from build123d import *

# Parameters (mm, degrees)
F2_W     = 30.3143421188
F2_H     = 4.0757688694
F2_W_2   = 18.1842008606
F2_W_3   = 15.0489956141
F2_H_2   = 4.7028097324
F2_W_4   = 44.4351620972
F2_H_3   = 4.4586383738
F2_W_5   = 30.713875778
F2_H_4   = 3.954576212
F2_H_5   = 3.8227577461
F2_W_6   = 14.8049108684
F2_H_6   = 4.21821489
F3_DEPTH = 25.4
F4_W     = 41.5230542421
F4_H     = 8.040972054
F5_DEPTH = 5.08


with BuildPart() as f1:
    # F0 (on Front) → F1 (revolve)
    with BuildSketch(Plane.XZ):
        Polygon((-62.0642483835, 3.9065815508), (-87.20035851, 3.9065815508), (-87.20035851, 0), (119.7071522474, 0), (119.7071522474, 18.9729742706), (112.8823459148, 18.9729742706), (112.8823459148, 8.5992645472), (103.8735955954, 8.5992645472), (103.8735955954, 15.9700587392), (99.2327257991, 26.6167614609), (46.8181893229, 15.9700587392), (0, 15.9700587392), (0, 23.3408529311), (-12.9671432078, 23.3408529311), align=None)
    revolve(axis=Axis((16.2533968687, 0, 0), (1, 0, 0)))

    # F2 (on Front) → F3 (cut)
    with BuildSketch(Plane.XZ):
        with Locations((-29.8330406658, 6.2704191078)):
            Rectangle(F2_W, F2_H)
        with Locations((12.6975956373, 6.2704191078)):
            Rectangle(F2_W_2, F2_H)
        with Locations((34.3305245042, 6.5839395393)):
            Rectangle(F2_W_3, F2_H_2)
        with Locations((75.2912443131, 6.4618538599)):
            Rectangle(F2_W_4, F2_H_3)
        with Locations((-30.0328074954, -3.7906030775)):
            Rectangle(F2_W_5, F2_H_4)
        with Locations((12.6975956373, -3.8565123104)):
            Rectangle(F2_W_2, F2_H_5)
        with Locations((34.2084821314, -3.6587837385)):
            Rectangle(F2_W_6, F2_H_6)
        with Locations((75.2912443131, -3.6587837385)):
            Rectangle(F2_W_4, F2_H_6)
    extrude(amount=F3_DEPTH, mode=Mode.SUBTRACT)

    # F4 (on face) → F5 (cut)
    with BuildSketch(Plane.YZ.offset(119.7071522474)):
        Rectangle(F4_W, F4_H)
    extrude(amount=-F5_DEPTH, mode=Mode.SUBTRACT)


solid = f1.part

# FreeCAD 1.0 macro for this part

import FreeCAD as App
import Part
import Sketcher
Q = App.Units.Quantity

doc = App.newDocument("Part")
body = doc.addObject("PartDesign::Body", "Body")

sketch1 = body.newObject("Sketcher::SketchObject", "Sketch")
sketch1.AttachmentSupport = (doc.getObject("XZ_Plane"), [""])
sketch1.MapMode = "FlatFace"
sketch1.addGeometry([
    Part.LineSegment(App.Vector(-62.1, 3.9, 0), App.Vector(-87.2, 3.9, 0)),
    Part.LineSegment(App.Vector(-87.2, 3.9, 0), App.Vector(-87.2, 0, 0)),
    Part.LineSegment(App.Vector(-87.2, 0, 0), App.Vector(119.7, 0, 0)),
    Part.LineSegment(App.Vector(119.7, 0, 0), App.Vector(119.7, 19, 0)),
    Part.LineSegment(App.Vector(119.7, 19, 0), App.Vector(112.9, 19, 0)),
    Part.LineSegment(App.Vector(112.9, 19, 0), App.Vector(112.9, 8.6, 0)),
    Part.LineSegment(App.Vector(112.9, 8.6, 0), App.Vector(103.9, 8.6, 0)),
    Part.LineSegment(App.Vector(103.9, 8.6, 0), App.Vector(103.9, 16, 0)),
    Part.LineSegment(App.Vector(103.9, 16, 0), App.Vector(99.2, 26.6, 0)),
    Part.LineSegment(App.Vector(99.2, 26.6, 0), App.Vector(46.8, 16, 0)),
    Part.LineSegment(App.Vector(46.8, 16, 0), App.Vector(0, 16, 0)),
    Part.LineSegment(App.Vector(0, 16, 0), App.Vector(0, 23.3, 0)),
    Part.LineSegment(App.Vector(0, 23.3, 0), App.Vector(-13, 23.3, 0)),
    Part.LineSegment(App.Vector(-13, 23.3, 0), App.Vector(-62.1, 3.9, 0)),
], False)
sketch1.addConstraint([
    Sketcher.Constraint("Coincident", 0, 2, 1, 1),
    Sketcher.Constraint("Coincident", 1, 2, 2, 1),
    Sketcher.Constraint("Coincident", 2, 2, 3, 1),
    Sketcher.Constraint("Coincident", 3, 2, 4, 1),
    Sketcher.Constraint("Coincident", 4, 2, 5, 1),
    Sketcher.Constraint("Coincident", 5, 2, 6, 1),
    Sketcher.Constraint("Coincident", 6, 2, 7, 1),
    Sketcher.Constraint("Coincident", 7, 2, 8, 1),
    Sketcher.Constraint("Coincident", 8, 2, 9, 1),
    Sketcher.Constraint("Coincident", 9, 2, 10, 1),
    Sketcher.Constraint("Coincident", 10, 2, 11, 1),
    Sketcher.Constraint("Coincident", 11, 2, 12, 1),
    Sketcher.Constraint("Coincident", 12, 2, 13, 1),
    Sketcher.Constraint("Coincident", 13, 2, 0, 1),
    Sketcher.Constraint("Horizontal", 0),
    Sketcher.Constraint("Vertical", 1),
    Sketcher.Constraint("Horizontal", 2),
    Sketcher.Constraint("Vertical", 3),
    Sketcher.Constraint("Horizontal", 4),
    Sketcher.Constraint("Vertical", 5),
    Sketcher.Constraint("Horizontal", 6),
    Sketcher.Constraint("Vertical", 7),
    Sketcher.Constraint("Horizontal", 10),
    Sketcher.Constraint("Vertical", 11),
    Sketcher.Constraint("Horizontal", 12),
    Sketcher.Constraint("PointOnObject", 1, 2, -1),
    Sketcher.Constraint("PointOnObject", 10, 2, -2),
    Sketcher.Constraint("Horizontal", 7, 2, 9, 2),
    Sketcher.Constraint("Equal", 7, 11),
    Sketcher.Constraint("DistanceX", 0, 2, 0, 1, 25.13611),
    Sketcher.Constraint("DistanceX", 2, 1, 2, 2, 206.907511),
    Sketcher.Constraint("DistanceX", 6, 2, 6, 1, 9.00875),
    Sketcher.Constraint("DistanceX", 10, 2, 10, 1, 46.818189),
    Sketcher.Constraint("DistanceY", 1, 2, 1, 1, 3.906582),
    Sketcher.Constraint("DistanceY", 5, 2, 5, 1, 10.37371),
    Sketcher.Constraint("DistanceX", 4, 2, 4, 1, 6.824806),
    Sketcher.Constraint("DistanceX", 12, 2, 12, 1, 12.967143),
    Sketcher.Constraint("DistanceY", 3, 1, 3, 2, 18.972974),
    Sketcher.Constraint("DistanceY", 7, 1, 7, 2, 7.370794),
    Sketcher.Constraint("DistanceX", 0, 2, -1, 1, 87.200359),
    Sketcher.Constraint("DistanceY", -1, 1, 8, 2, 26.616761),
    Sketcher.Constraint("DistanceX", 8, 2, 7, 2, 4.64087),
])
revolution = body.newObject("PartDesign::Revolution", "Revolution")
revolution.Profile = sketch1
revolution.ReferenceAxis = (sketch1, ["H_Axis"])
revolution.Angle = 360

sketch2 = body.newObject("Sketcher::SketchObject", "Sketch001")
sketch2.AttachmentSupport = (doc.getObject("XZ_Plane"), [""])
sketch2.MapMode = "FlatFace"
sketch2.addGeometry([
    Part.LineSegment(App.Vector(-45, 8.3, 0), App.Vector(-45, 4.2, 0)),
    Part.LineSegment(App.Vector(-45, 4.2, 0), App.Vector(-14.7, 4.2, 0)),
    Part.LineSegment(App.Vector(-14.7, 4.2, 0), App.Vector(-14.7, 8.3, 0)),
    Part.LineSegment(App.Vector(-14.7, 8.3, 0), App.Vector(-45, 8.3, 0)),
    Part.LineSegment(App.Vector(3.6, 8.3, 0), App.Vector(3.6, 4.2, 0)),
    Part.LineSegment(App.Vector(3.6, 4.2, 0), App.Vector(21.8, 4.2, 0)),
    Part.LineSegment(App.Vector(21.8, 4.2, 0), App.Vector(21.8, 8.3, 0)),
    Part.LineSegment(App.Vector(21.8, 8.3, 0), App.Vector(3.6, 8.3, 0)),
    Part.LineSegment(App.Vector(26.8, 8.9, 0), App.Vector(26.8, 4.2, 0)),
    Part.LineSegment(App.Vector(26.8, 4.2, 0), App.Vector(41.9, 4.2, 0)),
    Part.LineSegment(App.Vector(41.9, 4.2, 0), App.Vector(41.9, 8.9, 0)),
    Part.LineSegment(App.Vector(41.9, 8.9, 0), App.Vector(26.8, 8.9, 0)),
    Part.LineSegment(App.Vector(53.1, 8.7, 0), App.Vector(53.1, 4.2, 0)),
    Part.LineSegment(App.Vector(53.1, 4.2, 0), App.Vector(97.5, 4.2, 0)),
    Part.LineSegment(App.Vector(97.5, 4.2, 0), App.Vector(97.5, 8.7, 0)),
    Part.LineSegment(App.Vector(97.5, 8.7, 0), App.Vector(53.1, 8.7, 0)),
    Part.LineSegment(App.Vector(-45.4, -1.8, 0), App.Vector(-45.4, -5.8, 0)),
    Part.LineSegment(App.Vector(-45.4, -5.8, 0), App.Vector(-14.7, -5.8, 0)),
    Part.LineSegment(App.Vector(-14.7, -5.8, 0), App.Vector(-14.7, -1.8, 0)),
    Part.LineSegment(App.Vector(-14.7, -1.8, 0), App.Vector(-45.4, -1.8, 0)),
    Part.LineSegment(App.Vector(3.6, -1.9, 0), App.Vector(3.6, -5.8, 0)),
    Part.LineSegment(App.Vector(3.6, -5.8, 0), App.Vector(21.8, -5.8, 0)),
    Part.LineSegment(App.Vector(21.8, -5.8, 0), App.Vector(21.8, -1.9, 0)),
    Part.LineSegment(App.Vector(21.8, -1.9, 0), App.Vector(3.6, -1.9, 0)),
    Part.LineSegment(App.Vector(26.8, -1.5, 0), App.Vector(26.8, -5.8, 0)),
    Part.LineSegment(App.Vector(26.8, -5.8, 0), App.Vector(41.6, -5.8, 0)),
    Part.LineSegment(App.Vector(41.6, -5.8, 0), App.Vector(41.6, -1.5, 0)),
    Part.LineSegment(App.Vector(41.6, -1.5, 0), App.Vector(26.8, -1.5, 0)),
    Part.LineSegment(App.Vector(53.1, -1.5, 0), App.Vector(53.1, -5.8, 0)),
    Part.LineSegment(App.Vector(53.1, -5.8, 0), App.Vector(97.5, -5.8, 0)),
    Part.LineSegment(App.Vector(97.5, -5.8, 0), App.Vector(97.5, -1.5, 0)),
    Part.LineSegment(App.Vector(97.5, -1.5, 0), App.Vector(53.1, -1.5, 0)),
], False)
sketch2.addConstraint([
    Sketcher.Constraint("Coincident", 0, 2, 1, 1),
    Sketcher.Constraint("Coincident", 1, 2, 2, 1),
    Sketcher.Constraint("Coincident", 2, 2, 3, 1),
    Sketcher.Constraint("Coincident", 3, 2, 0, 1),
    Sketcher.Constraint("Coincident", 4, 2, 5, 1),
    Sketcher.Constraint("Coincident", 5, 2, 6, 1),
    Sketcher.Constraint("Coincident", 6, 2, 7, 1),
    Sketcher.Constraint("Coincident", 7, 2, 4, 1),
    Sketcher.Constraint("Coincident", 8, 2, 9, 1),
    Sketcher.Constraint("Coincident", 9, 2, 10, 1),
    Sketcher.Constraint("Coincident", 10, 2, 11, 1),
    Sketcher.Constraint("Coincident", 11, 2, 8, 1),
    Sketcher.Constraint("Coincident", 12, 2, 13, 1),
    Sketcher.Constraint("Coincident", 13, 2, 14, 1),
    Sketcher.Constraint("Coincident", 14, 2, 15, 1),
    Sketcher.Constraint("Coincident", 15, 2, 12, 1),
    Sketcher.Constraint("Coincident", 16, 2, 17, 1),
    Sketcher.Constraint("Coincident", 17, 2, 18, 1),
    Sketcher.Constraint("Coincident", 18, 2, 19, 1),
    Sketcher.Constraint("Coincident", 19, 2, 16, 1),
    Sketcher.Constraint("Coincident", 20, 2, 21, 1),
    Sketcher.Constraint("Coincident", 21, 2, 22, 1),
    Sketcher.Constraint("Coincident", 22, 2, 23, 1),
    Sketcher.Constraint("Coincident", 23, 2, 20, 1),
    Sketcher.Constraint("Coincident", 24, 2, 25, 1),
    Sketcher.Constraint("Coincident", 25, 2, 26, 1),
    Sketcher.Constraint("Coincident", 26, 2, 27, 1),
    Sketcher.Constraint("Coincident", 27, 2, 24, 1),
    Sketcher.Constraint("Coincident", 28, 2, 29, 1),
    Sketcher.Constraint("Coincident", 29, 2, 30, 1),
    Sketcher.Constraint("Coincident", 30, 2, 31, 1),
    Sketcher.Constraint("Coincident", 31, 2, 28, 1),
    Sketcher.Constraint("Vertical", 0),
    Sketcher.Constraint("Horizontal", 1),
    Sketcher.Constraint("Vertical", 2),
    Sketcher.Constraint("Horizontal", 3),
    Sketcher.Constraint("Vertical", 4),
    Sketcher.Constraint("Horizontal", 5),
    Sketcher.Constraint("Vertical", 6),
    Sketcher.Constraint("Horizontal", 7),
    Sketcher.Constraint("Vertical", 8),
    Sketcher.Constraint("Horizontal", 9),
    Sketcher.Constraint("Vertical", 10),
    Sketcher.Constraint("Horizontal", 11),
    Sketcher.Constraint("Vertical", 12),
    Sketcher.Constraint("Horizontal", 13),
    Sketcher.Constraint("Vertical", 14),
    Sketcher.Constraint("Horizontal", 15),
    Sketcher.Constraint("Vertical", 16),
    Sketcher.Constraint("Horizontal", 17),
    Sketcher.Constraint("Vertical", 18),
    Sketcher.Constraint("Horizontal", 19),
    Sketcher.Constraint("Vertical", 20),
    Sketcher.Constraint("Horizontal", 21),
    Sketcher.Constraint("Vertical", 22),
    Sketcher.Constraint("Horizontal", 23),
    Sketcher.Constraint("Vertical", 24),
    Sketcher.Constraint("Horizontal", 25),
    Sketcher.Constraint("Vertical", 26),
    Sketcher.Constraint("Horizontal", 27),
    Sketcher.Constraint("Vertical", 28),
    Sketcher.Constraint("Horizontal", 29),
    Sketcher.Constraint("Vertical", 30),
    Sketcher.Constraint("Horizontal", 31),
    Sketcher.Constraint("Horizontal", 1, 2, 4, 2),
    Sketcher.Constraint("Horizontal", 3, 2, 6, 2),
    Sketcher.Constraint("Horizontal", 5, 2, 8, 2),
    Sketcher.Constraint("Horizontal", 9, 2, 12, 2),
    Sketcher.Constraint("Horizontal", 17, 2, 20, 2),
    Sketcher.Constraint("Horizontal", 21, 2, 24, 2),
    Sketcher.Constraint("Horizontal", 25, 2, 28, 2),
    Sketcher.Constraint("Horizontal", 27, 2, 30, 2),
    Sketcher.Constraint("Vertical", 2, 2, 17, 2),
    Sketcher.Constraint("Vertical", 7, 2, 20, 2),
    Sketcher.Constraint("Vertical", 6, 2, 21, 2),
    Sketcher.Constraint("Vertical", 11, 2, 24, 2),
    Sketcher.Constraint("Vertical", 15, 2, 28, 2),
    Sketcher.Constraint("Vertical", 14, 2, 29, 2),
    Sketcher.Constraint("DistanceX", 5, 1, 5, 2, 18.184201),
    Sketcher.Constraint("DistanceX", 25, 1, 25, 2, 14.804911),
    Sketcher.Constraint("DistanceY", 0, 2, 0, 1, 4.075769),
    Sketcher.Constraint("DistanceY", 8, 2, 8, 1, 4.70281),
    Sketcher.Constraint("DistanceY", 12, 2, 12, 1, 4.458638),
    Sketcher.Constraint("DistanceX", 8, 2, 13, 2, 70.702799),
    Sketcher.Constraint("DistanceX", 1, 1, 1, 2, 30.314342),
    Sketcher.Constraint("DistanceX", 9, 1, 9, 2, 15.048996),
    Sketcher.Constraint("DistanceX", 13, 1, 13, 2, 44.435162),
    Sketcher.Constraint("DistanceX", 17, 1, 17, 2, 30.713876),
    Sketcher.Constraint("DistanceY", 16, 2, 16, 1, 3.954576),
    Sketcher.Constraint("DistanceY", 20, 2, 20, 1, 3.822758),
    Sketcher.Constraint("DistanceY", 24, 2, 24, 1, 4.218215),
    Sketcher.Constraint("DistanceX", 0, 2, -1, 1, 44.990212),
    Sketcher.Constraint("DistanceY", 16, 2, -1, 1, 5.767891),
    Sketcher.Constraint("DistanceX", 5, 2, 8, 2, 5.016331),
    Sketcher.Constraint("DistanceX", 16, 2, 4, 2, 48.995241),
    Sketcher.Constraint("DistanceY", 18, 2, 1, 2, 6.04585),
])
pocket1 = body.newObject("PartDesign::Pocket", "Pocket")
pocket1.Profile = sketch2
pocket1.Length = Q("1 in")
pocket1.Reversed = True

sketch3 = body.newObject("Sketcher::SketchObject", "Sketch002")
sketch3.AttachmentSupport = (doc.getObject("YZ_Plane"), [""])
sketch3.MapMode = "FlatFace"
sketch3.AttachmentOffset = App.Placement(App.Vector(0, 0, 119.707152), App.Rotation())
sketch3.addGeometry([
    Part.LineSegment(App.Vector(-21, 4, 0), App.Vector(-21, -4, 0)),
    Part.LineSegment(App.Vector(-21, -4, 0), App.Vector(21, -4, 0)),
    Part.LineSegment(App.Vector(21, -4, 0), App.Vector(21, 4, 0)),
    Part.LineSegment(App.Vector(21, 4, 0), App.Vector(-21, 4, 0)),
], False)
sketch3.addConstraint([
    Sketcher.Constraint("Coincident", 0, 2, 1, 1),
    Sketcher.Constraint("Coincident", 1, 2, 2, 1),
    Sketcher.Constraint("Coincident", 2, 2, 3, 1),
    Sketcher.Constraint("Coincident", 3, 2, 0, 1),
    Sketcher.Constraint("Vertical", 0),
    Sketcher.Constraint("Horizontal", 1),
    Sketcher.Constraint("Vertical", 2),
    Sketcher.Constraint("Horizontal", 3),
    Sketcher.Constraint("Symmetric", 0, 2, 2, 2, -1, 1),
    Sketcher.Constraint("DistanceX", 1, 1, 1, 2, 41.523054),
    Sketcher.Constraint("DistanceY", 0, 2, 0, 1, 8.040972),
])
pocket2 = body.newObject("PartDesign::Pocket", "Pocket001")
pocket2.Profile = sketch3
pocket2.Length = Q("0.2 in")

doc.recompute()
